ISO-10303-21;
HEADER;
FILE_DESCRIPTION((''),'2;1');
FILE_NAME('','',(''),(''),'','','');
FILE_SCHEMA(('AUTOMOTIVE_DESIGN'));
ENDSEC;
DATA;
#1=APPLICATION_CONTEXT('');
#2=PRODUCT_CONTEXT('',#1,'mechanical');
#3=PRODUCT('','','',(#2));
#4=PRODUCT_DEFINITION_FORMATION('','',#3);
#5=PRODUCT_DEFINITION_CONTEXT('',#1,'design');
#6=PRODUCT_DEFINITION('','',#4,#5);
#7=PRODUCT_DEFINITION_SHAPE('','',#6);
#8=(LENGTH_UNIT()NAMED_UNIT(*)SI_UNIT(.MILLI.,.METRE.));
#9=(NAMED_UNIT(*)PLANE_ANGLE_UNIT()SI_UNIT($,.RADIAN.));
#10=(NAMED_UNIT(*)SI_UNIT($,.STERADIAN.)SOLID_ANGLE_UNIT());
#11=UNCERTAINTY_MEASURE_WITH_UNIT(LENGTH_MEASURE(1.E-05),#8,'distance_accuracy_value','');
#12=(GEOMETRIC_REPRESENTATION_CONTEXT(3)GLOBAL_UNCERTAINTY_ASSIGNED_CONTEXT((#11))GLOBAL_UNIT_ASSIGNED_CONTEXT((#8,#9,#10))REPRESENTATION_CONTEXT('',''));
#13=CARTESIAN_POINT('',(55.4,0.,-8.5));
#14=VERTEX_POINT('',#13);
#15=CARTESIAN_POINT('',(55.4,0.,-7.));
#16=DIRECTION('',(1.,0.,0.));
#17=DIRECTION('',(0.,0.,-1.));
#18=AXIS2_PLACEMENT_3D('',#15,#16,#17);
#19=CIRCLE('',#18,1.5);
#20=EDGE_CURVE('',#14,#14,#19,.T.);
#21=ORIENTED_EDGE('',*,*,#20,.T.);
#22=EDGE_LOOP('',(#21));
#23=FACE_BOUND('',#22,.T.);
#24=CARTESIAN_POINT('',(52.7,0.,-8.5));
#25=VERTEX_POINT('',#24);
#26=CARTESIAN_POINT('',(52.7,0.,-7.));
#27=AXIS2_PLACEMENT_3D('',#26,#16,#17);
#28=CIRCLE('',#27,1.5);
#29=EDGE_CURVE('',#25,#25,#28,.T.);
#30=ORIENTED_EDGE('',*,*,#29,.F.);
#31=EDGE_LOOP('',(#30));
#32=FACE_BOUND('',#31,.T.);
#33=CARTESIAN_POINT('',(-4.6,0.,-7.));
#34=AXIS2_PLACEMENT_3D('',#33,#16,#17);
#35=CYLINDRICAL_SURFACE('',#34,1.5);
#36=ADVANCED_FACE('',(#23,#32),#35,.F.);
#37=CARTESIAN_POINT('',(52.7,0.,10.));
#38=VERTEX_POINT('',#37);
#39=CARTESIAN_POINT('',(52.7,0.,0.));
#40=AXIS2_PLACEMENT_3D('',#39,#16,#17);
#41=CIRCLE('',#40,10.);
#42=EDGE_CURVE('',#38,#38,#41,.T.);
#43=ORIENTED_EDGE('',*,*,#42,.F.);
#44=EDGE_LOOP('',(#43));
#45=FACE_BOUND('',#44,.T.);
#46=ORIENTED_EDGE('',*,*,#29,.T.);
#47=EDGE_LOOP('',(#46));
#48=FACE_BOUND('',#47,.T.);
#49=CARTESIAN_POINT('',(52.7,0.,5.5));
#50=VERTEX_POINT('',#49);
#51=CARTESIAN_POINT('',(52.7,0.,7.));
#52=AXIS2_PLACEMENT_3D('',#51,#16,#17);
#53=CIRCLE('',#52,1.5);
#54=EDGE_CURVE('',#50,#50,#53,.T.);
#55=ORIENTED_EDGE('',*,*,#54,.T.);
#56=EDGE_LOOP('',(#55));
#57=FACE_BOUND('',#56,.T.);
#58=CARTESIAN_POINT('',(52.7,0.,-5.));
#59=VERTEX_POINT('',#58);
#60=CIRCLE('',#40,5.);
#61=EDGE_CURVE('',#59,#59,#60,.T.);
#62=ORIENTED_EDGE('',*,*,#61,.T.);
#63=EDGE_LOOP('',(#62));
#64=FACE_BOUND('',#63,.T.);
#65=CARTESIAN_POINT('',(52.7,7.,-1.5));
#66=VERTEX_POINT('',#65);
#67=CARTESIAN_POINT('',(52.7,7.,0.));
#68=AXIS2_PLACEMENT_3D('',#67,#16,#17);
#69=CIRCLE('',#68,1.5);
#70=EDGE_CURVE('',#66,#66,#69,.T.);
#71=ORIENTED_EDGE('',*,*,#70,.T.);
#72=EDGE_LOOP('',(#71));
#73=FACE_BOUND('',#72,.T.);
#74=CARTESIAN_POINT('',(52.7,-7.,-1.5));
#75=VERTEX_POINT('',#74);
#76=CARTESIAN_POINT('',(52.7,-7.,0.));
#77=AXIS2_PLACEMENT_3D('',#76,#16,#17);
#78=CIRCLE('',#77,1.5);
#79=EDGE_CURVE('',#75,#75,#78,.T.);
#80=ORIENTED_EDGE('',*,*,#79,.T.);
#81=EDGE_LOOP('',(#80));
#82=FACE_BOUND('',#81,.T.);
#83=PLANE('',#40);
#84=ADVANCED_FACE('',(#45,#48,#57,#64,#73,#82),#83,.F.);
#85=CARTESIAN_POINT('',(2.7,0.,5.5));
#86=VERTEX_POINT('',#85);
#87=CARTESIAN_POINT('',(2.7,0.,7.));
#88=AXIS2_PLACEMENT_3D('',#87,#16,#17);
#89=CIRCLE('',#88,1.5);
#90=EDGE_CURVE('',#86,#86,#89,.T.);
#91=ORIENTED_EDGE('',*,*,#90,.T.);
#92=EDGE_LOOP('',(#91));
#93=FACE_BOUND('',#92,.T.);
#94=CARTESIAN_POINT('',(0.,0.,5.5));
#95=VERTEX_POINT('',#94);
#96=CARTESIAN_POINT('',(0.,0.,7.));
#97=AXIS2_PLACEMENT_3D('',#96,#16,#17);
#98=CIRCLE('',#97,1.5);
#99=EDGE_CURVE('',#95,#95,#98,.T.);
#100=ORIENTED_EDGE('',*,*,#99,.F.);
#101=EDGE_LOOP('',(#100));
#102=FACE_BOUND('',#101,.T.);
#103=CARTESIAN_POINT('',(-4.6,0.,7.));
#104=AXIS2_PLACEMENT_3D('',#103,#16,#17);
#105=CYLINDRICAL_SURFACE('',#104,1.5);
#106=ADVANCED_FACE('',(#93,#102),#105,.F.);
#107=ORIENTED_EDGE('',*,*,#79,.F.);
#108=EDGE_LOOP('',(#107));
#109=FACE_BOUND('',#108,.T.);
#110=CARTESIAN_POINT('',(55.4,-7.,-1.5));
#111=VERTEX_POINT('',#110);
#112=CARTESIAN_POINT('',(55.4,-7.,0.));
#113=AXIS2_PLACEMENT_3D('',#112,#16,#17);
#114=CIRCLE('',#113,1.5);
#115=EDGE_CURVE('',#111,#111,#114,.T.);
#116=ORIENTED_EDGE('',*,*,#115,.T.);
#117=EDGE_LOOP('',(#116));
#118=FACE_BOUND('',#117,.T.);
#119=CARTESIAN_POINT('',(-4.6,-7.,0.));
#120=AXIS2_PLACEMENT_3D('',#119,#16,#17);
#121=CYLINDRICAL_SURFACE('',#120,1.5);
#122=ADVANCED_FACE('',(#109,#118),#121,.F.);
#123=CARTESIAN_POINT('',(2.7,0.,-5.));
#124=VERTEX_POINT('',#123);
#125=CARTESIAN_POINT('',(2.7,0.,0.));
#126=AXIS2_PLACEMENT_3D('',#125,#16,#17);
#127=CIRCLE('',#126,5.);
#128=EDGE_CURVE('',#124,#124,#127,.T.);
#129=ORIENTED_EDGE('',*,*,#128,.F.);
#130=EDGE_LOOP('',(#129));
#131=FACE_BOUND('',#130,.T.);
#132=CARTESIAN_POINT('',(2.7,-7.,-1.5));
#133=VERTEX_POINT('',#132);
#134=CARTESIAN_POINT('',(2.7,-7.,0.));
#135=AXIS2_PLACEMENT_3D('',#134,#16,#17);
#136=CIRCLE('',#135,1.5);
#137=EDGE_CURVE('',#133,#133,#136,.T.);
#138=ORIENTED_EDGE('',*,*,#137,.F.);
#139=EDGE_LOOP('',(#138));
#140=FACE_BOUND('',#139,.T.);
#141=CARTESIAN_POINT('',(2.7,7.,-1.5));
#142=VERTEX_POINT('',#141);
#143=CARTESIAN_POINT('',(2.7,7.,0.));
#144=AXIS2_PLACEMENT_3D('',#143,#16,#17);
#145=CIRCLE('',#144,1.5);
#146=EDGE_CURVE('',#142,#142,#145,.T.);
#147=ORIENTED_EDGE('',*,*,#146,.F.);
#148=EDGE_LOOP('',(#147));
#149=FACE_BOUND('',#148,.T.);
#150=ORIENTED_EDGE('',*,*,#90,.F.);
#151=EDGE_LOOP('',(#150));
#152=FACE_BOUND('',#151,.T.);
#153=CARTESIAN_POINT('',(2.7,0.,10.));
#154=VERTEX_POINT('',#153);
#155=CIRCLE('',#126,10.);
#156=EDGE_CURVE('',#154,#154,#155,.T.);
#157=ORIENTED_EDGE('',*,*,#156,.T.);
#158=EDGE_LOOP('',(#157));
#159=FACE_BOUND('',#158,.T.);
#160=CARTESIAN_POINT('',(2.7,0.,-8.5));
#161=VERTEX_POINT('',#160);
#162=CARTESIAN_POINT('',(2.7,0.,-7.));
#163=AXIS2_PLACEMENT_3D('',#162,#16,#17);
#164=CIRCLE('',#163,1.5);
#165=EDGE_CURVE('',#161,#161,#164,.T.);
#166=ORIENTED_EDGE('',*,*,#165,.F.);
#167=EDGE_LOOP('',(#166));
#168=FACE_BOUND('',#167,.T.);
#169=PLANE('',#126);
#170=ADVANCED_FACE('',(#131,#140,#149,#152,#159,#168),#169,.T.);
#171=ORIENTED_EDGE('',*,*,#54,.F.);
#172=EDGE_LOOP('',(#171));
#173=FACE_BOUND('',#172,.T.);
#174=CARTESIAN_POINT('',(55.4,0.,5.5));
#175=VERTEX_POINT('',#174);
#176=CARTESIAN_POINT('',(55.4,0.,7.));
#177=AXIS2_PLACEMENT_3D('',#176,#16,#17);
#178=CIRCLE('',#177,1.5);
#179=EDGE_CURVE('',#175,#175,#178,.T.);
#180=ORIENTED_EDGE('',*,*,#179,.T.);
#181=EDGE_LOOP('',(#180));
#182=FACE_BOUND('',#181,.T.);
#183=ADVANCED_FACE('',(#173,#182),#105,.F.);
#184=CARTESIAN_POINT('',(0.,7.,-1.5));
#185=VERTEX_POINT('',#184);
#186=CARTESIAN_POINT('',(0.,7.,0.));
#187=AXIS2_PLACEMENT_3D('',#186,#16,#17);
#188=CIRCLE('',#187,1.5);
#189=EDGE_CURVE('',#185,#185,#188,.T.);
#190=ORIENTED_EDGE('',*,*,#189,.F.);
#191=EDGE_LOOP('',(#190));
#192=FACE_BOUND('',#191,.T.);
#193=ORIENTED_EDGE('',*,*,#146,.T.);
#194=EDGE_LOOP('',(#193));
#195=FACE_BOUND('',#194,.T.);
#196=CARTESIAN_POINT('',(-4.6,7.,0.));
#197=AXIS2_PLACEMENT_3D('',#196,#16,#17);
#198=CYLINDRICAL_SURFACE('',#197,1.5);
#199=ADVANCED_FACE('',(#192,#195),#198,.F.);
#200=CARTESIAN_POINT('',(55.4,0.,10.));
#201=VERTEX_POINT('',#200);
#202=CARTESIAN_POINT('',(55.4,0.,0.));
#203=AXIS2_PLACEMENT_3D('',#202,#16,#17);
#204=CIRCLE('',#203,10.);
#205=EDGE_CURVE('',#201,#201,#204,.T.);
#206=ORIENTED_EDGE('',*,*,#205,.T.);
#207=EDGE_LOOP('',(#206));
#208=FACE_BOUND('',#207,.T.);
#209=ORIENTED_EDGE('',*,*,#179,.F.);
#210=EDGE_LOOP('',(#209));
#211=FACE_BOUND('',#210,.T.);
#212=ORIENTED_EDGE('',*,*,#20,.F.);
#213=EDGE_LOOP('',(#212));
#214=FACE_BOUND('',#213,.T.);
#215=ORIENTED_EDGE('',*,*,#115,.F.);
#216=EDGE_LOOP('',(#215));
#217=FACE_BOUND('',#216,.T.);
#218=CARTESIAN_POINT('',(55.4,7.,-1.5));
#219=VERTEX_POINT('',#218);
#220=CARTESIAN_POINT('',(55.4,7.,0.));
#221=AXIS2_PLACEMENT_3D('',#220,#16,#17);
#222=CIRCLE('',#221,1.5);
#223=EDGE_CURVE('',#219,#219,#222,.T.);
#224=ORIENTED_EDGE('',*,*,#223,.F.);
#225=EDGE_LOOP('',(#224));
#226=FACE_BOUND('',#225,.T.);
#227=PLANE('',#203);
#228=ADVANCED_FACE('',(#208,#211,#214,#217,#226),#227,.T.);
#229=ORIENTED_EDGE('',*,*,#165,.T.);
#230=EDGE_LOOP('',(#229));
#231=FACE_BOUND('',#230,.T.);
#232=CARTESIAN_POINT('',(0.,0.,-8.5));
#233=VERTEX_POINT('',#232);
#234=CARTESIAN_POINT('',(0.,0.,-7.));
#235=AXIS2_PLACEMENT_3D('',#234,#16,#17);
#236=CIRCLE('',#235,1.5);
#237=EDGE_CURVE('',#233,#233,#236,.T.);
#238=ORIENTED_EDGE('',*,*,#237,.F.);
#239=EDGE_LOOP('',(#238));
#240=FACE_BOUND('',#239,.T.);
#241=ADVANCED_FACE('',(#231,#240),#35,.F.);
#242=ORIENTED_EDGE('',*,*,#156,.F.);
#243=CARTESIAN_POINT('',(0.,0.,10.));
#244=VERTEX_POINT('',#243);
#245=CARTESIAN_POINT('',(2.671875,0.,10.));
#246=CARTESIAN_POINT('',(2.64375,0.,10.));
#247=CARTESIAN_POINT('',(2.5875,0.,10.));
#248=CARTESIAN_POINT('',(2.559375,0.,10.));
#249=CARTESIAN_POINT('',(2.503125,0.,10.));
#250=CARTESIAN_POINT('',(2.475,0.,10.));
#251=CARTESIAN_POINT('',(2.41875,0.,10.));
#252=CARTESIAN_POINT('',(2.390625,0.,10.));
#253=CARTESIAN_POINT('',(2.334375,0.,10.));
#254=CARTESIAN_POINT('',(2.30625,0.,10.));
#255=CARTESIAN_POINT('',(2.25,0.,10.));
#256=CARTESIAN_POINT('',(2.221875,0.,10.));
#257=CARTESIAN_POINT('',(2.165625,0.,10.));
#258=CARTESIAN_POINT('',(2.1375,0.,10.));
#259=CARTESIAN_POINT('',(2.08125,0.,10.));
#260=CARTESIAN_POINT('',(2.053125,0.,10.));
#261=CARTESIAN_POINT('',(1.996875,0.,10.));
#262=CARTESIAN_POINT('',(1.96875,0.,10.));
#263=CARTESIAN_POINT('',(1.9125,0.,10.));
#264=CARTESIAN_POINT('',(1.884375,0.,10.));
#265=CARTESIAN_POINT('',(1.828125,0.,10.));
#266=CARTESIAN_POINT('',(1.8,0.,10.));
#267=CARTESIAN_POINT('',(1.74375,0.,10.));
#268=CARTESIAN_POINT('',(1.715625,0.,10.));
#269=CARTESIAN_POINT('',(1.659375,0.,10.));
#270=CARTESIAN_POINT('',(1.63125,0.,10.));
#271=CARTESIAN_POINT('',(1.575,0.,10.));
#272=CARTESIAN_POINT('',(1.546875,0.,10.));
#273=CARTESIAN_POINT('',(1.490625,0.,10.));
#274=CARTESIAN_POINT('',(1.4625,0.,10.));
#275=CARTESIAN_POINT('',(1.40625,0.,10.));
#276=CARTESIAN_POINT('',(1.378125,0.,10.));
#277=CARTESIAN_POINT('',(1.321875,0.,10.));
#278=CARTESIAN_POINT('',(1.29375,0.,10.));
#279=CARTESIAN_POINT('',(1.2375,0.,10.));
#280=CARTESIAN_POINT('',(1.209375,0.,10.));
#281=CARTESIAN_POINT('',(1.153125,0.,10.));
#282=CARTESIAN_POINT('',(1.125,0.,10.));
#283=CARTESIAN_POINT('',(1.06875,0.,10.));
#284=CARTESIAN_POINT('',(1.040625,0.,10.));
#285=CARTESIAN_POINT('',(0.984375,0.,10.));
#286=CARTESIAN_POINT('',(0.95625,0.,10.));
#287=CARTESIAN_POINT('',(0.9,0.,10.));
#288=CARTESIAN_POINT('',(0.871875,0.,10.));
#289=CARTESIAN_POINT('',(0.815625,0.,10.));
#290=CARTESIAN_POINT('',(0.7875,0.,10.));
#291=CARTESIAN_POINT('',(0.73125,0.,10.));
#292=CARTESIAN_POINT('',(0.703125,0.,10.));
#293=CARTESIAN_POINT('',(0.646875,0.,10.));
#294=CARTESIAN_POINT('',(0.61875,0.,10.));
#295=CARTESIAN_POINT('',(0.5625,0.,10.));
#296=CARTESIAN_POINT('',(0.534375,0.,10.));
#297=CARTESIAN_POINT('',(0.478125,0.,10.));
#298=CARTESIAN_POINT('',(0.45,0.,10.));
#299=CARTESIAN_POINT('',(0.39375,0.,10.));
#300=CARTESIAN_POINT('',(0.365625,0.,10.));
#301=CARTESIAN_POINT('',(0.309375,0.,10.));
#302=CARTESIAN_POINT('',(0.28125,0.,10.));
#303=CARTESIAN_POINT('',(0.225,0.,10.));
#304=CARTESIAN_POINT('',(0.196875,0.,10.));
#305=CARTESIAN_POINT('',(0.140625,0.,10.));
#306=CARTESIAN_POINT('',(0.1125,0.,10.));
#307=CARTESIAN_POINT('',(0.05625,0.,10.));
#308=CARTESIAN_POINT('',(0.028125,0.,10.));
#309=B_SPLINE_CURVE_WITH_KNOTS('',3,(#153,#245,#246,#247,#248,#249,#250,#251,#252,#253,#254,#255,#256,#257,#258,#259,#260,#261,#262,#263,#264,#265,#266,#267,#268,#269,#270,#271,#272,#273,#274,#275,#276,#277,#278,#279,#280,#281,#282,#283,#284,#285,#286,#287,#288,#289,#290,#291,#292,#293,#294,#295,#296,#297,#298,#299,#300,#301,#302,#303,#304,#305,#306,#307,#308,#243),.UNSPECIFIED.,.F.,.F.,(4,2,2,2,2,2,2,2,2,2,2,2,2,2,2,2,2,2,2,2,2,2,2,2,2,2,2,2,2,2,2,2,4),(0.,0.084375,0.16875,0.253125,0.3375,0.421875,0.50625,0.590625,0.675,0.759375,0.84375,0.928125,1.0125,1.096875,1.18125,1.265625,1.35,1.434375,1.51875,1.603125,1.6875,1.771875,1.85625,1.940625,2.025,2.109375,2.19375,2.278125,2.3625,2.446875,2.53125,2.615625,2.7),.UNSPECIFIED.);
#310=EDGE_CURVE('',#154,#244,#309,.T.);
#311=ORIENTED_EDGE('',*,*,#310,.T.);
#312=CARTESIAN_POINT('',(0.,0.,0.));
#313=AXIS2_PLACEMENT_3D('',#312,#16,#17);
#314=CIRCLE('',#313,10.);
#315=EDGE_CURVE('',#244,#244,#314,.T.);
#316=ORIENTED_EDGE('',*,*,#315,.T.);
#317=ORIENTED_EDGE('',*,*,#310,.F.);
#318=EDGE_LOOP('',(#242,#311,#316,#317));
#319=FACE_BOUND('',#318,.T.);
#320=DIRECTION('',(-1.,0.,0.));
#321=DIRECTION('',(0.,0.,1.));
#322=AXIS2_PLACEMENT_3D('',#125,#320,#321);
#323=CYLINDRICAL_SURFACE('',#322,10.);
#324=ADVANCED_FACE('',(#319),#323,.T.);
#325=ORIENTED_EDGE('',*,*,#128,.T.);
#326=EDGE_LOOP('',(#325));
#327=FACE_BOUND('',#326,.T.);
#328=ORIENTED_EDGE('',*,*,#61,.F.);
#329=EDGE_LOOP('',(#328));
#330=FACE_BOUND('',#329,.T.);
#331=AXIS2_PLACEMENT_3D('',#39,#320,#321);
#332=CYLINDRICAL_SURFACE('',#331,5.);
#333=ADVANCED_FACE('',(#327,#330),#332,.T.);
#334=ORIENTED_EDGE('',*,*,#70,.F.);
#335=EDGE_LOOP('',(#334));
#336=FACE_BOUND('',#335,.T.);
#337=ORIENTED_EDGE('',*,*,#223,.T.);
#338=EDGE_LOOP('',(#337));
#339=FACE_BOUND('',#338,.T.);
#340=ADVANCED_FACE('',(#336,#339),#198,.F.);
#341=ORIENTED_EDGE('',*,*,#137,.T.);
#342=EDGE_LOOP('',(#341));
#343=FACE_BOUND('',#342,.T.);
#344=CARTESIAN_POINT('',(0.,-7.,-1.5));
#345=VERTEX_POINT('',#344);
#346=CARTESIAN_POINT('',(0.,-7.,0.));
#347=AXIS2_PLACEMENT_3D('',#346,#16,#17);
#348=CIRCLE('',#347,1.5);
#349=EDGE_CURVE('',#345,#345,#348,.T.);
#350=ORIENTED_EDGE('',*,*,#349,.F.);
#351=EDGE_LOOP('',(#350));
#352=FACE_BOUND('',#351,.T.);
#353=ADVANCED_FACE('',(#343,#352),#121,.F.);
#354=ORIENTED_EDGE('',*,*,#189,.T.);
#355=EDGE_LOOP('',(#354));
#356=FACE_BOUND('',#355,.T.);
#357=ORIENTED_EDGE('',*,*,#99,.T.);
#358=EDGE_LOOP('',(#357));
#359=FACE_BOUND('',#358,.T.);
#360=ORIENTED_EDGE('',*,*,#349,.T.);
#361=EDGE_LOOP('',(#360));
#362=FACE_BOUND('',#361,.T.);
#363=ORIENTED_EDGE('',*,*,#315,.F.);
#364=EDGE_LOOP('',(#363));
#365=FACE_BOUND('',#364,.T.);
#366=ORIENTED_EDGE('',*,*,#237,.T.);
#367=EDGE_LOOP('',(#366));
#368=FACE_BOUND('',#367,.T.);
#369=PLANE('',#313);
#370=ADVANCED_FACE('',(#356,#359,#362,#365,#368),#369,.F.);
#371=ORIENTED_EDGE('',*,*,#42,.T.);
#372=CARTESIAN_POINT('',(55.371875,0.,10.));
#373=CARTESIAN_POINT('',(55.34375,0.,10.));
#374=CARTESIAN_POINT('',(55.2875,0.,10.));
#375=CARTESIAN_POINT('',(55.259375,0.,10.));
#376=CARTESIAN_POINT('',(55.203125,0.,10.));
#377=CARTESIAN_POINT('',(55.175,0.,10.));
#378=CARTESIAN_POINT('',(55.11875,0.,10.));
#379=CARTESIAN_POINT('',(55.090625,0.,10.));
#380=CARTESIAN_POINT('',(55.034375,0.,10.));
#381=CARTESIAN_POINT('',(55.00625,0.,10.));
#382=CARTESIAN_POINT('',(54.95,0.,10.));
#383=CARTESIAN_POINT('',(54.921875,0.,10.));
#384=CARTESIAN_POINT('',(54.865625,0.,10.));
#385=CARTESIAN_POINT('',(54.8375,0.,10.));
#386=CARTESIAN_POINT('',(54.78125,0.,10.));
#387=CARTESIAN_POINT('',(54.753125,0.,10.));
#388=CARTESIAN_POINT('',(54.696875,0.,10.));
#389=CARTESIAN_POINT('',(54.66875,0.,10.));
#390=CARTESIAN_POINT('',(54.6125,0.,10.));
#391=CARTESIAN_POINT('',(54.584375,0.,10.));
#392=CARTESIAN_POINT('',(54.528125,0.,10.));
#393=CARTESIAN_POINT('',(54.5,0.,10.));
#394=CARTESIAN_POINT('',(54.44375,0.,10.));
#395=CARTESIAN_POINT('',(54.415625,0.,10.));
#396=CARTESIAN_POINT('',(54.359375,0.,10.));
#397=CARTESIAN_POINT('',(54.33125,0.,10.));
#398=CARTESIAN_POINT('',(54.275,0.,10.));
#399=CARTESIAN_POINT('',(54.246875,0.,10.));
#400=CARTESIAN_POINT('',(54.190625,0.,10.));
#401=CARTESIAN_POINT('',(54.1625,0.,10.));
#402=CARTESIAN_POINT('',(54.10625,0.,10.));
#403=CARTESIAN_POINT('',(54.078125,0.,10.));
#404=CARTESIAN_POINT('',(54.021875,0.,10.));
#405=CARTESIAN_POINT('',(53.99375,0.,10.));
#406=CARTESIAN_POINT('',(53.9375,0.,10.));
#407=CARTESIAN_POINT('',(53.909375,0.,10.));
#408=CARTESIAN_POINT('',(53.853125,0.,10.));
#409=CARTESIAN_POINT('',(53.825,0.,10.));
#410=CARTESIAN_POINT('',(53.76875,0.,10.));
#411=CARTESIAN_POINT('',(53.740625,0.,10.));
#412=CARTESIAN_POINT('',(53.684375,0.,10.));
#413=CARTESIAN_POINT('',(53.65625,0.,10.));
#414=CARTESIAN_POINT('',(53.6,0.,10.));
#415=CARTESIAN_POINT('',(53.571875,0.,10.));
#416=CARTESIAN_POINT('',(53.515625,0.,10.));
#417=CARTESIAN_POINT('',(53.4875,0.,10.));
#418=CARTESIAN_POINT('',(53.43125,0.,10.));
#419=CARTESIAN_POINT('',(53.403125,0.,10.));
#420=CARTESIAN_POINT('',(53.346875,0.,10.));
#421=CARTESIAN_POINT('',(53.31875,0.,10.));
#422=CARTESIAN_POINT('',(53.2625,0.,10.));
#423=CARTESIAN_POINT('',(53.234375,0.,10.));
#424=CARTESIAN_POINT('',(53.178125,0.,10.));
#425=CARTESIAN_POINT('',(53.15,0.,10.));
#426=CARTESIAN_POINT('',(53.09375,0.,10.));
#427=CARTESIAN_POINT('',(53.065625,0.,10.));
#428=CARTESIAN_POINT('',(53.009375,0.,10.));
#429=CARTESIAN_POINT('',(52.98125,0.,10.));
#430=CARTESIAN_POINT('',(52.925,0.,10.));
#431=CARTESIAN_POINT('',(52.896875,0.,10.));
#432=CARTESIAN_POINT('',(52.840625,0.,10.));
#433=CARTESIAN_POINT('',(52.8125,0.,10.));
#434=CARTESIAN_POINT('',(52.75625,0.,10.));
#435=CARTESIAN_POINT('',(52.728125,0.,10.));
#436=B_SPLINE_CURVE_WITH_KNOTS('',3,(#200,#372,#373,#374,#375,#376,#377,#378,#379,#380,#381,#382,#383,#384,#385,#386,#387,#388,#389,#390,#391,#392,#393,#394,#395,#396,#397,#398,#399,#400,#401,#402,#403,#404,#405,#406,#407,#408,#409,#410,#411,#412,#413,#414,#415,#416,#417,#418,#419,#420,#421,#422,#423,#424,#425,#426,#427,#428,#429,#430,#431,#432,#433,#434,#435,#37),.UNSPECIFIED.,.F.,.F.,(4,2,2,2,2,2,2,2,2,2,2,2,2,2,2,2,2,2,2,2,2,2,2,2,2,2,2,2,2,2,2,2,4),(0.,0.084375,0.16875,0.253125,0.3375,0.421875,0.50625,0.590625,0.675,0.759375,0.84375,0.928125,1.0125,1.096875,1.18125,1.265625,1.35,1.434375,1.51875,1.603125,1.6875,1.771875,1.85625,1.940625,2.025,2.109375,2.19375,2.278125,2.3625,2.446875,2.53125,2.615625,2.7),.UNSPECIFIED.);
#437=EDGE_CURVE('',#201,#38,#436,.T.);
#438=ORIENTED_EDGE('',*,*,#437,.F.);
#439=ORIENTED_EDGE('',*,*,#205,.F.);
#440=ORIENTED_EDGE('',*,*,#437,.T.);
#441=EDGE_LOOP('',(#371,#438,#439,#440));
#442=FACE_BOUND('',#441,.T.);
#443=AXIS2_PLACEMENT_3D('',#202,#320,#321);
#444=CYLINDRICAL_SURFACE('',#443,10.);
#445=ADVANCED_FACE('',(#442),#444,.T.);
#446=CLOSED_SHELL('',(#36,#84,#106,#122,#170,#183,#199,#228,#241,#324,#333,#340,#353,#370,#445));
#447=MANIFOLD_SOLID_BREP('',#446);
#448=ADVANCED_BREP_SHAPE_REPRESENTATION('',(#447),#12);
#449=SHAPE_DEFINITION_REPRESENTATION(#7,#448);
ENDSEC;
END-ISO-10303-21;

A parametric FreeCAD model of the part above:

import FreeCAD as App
import Part
import Sketcher
from FreeCAD import Vector

doc = App.newDocument("Part")
body = doc.addObject("PartDesign::Body", "Body")

sketch1 = body.newObject("Sketcher::SketchObject", "Sketch")
sketch1.AttachmentSupport = (doc.getObject("YZ_Plane"), [""])
sketch1.MapMode = "FlatFace"
sketch1.addGeometry(Part.Circle(Vector(0, 0, 0), Vector(0, 0, 1), 10), False)
sketch1.addConstraint([
    Sketcher.Constraint("Coincident", 0, 3, -1, 1),
    Sketcher.Constraint("Diameter", 0, 20.0),
])
pad1 = body.newObject("PartDesign::Pad", "Pad")
pad1.Profile = sketch1
pad1.Length = 2.7

sketch2 = body.newObject("Sketcher::SketchObject", "Sketch001")
sketch2.AttachmentSupport = (doc.getObject("YZ_Plane"), [""])
sketch2.MapMode = "FlatFace"
sketch2.AttachmentOffset = App.Placement(Vector(0, 0, 2.7), App.Rotation())
sketch2.addGeometry(Part.Circle(Vector(0, 0, 0), Vector(0, 0, 1), 5), False)
sketch2.addConstraint([
    Sketcher.Constraint("Coincident", 0, 3, -1, 1),
    Sketcher.Constraint("Diameter", 0, 10.0),
])
pad2 = body.newObject("PartDesign::Pad", "Pad001")
pad2.Profile = sketch2
pad2.Length = 50

sketch3 = body.newObject("Sketcher::SketchObject", "Sketch002")
sketch3.AttachmentSupport = (doc.getObject("YZ_Plane"), [""])
sketch3.MapMode = "FlatFace"
sketch3.AttachmentOffset = App.Placement(Vector(0, 0, 52.7), App.Rotation())
sketch3.addGeometry(Part.Circle(Vector(0, 0, 0), Vector(0, 0, 1), 10), False)
sketch3.addConstraint([
    Sketcher.Constraint("Coincident", 0, 3, -1, 1),
    Sketcher.Constraint("Diameter", 0, 20.0),
])
pad3 = body.newObject("PartDesign::Pad", "Pad002")
pad3.Profile = sketch3
pad3.Length = 2.7

sketch4 = body.newObject("Sketcher::SketchObject", "Sketch003")
sketch4.AttachmentSupport = (doc.getObject("YZ_Plane"), [""])
sketch4.MapMode = "FlatFace"
sketch4.AttachmentOffset = App.Placement(Vector(0, 0, 55.4), App.Rotation())
sketch4.addGeometry([
    Part.Circle(Vector(7, 0, 0), Vector(0, 0, 1), 1.5),
    Part.Circle(Vector(0, -7, 0), Vector(0, 0, 1), 1.5),
    Part.Circle(Vector(-7, 0, 0), Vector(0, 0, 1), 1.5),
    Part.Circle(Vector(0, 7, 0), Vector(0, 0, 1), 1.5),
], False)
sketch4.addConstraint([
    Sketcher.Constraint("Equal", 0, 1),
    Sketcher.Constraint("Equal", 1, 2),
    Sketcher.Constraint("Equal", 2, 3),
    Sketcher.Constraint("Symmetric", 0, 3, 2, 3, -1, 1),
    Sketcher.Constraint("Symmetric", 1, 3, 3, 3, -1, 1),
    Sketcher.Constraint("PointOnObject", 0, 3, -1),
    Sketcher.Constraint("PointOnObject", 1, 3, -2),
    Sketcher.Constraint("Diameter", 0, 3.0),
    Sketcher.Constraint("DistanceX", -1, 1, 0, 3, 7.0),
    Sketcher.Constraint("DistanceY", 1, 3, -1, 1, 7.0),
])
pocket1 = body.newObject("PartDesign::Pocket", "Pocket")
pocket1.Profile = sketch4
pocket1.Length = 60

doc.recompute()
